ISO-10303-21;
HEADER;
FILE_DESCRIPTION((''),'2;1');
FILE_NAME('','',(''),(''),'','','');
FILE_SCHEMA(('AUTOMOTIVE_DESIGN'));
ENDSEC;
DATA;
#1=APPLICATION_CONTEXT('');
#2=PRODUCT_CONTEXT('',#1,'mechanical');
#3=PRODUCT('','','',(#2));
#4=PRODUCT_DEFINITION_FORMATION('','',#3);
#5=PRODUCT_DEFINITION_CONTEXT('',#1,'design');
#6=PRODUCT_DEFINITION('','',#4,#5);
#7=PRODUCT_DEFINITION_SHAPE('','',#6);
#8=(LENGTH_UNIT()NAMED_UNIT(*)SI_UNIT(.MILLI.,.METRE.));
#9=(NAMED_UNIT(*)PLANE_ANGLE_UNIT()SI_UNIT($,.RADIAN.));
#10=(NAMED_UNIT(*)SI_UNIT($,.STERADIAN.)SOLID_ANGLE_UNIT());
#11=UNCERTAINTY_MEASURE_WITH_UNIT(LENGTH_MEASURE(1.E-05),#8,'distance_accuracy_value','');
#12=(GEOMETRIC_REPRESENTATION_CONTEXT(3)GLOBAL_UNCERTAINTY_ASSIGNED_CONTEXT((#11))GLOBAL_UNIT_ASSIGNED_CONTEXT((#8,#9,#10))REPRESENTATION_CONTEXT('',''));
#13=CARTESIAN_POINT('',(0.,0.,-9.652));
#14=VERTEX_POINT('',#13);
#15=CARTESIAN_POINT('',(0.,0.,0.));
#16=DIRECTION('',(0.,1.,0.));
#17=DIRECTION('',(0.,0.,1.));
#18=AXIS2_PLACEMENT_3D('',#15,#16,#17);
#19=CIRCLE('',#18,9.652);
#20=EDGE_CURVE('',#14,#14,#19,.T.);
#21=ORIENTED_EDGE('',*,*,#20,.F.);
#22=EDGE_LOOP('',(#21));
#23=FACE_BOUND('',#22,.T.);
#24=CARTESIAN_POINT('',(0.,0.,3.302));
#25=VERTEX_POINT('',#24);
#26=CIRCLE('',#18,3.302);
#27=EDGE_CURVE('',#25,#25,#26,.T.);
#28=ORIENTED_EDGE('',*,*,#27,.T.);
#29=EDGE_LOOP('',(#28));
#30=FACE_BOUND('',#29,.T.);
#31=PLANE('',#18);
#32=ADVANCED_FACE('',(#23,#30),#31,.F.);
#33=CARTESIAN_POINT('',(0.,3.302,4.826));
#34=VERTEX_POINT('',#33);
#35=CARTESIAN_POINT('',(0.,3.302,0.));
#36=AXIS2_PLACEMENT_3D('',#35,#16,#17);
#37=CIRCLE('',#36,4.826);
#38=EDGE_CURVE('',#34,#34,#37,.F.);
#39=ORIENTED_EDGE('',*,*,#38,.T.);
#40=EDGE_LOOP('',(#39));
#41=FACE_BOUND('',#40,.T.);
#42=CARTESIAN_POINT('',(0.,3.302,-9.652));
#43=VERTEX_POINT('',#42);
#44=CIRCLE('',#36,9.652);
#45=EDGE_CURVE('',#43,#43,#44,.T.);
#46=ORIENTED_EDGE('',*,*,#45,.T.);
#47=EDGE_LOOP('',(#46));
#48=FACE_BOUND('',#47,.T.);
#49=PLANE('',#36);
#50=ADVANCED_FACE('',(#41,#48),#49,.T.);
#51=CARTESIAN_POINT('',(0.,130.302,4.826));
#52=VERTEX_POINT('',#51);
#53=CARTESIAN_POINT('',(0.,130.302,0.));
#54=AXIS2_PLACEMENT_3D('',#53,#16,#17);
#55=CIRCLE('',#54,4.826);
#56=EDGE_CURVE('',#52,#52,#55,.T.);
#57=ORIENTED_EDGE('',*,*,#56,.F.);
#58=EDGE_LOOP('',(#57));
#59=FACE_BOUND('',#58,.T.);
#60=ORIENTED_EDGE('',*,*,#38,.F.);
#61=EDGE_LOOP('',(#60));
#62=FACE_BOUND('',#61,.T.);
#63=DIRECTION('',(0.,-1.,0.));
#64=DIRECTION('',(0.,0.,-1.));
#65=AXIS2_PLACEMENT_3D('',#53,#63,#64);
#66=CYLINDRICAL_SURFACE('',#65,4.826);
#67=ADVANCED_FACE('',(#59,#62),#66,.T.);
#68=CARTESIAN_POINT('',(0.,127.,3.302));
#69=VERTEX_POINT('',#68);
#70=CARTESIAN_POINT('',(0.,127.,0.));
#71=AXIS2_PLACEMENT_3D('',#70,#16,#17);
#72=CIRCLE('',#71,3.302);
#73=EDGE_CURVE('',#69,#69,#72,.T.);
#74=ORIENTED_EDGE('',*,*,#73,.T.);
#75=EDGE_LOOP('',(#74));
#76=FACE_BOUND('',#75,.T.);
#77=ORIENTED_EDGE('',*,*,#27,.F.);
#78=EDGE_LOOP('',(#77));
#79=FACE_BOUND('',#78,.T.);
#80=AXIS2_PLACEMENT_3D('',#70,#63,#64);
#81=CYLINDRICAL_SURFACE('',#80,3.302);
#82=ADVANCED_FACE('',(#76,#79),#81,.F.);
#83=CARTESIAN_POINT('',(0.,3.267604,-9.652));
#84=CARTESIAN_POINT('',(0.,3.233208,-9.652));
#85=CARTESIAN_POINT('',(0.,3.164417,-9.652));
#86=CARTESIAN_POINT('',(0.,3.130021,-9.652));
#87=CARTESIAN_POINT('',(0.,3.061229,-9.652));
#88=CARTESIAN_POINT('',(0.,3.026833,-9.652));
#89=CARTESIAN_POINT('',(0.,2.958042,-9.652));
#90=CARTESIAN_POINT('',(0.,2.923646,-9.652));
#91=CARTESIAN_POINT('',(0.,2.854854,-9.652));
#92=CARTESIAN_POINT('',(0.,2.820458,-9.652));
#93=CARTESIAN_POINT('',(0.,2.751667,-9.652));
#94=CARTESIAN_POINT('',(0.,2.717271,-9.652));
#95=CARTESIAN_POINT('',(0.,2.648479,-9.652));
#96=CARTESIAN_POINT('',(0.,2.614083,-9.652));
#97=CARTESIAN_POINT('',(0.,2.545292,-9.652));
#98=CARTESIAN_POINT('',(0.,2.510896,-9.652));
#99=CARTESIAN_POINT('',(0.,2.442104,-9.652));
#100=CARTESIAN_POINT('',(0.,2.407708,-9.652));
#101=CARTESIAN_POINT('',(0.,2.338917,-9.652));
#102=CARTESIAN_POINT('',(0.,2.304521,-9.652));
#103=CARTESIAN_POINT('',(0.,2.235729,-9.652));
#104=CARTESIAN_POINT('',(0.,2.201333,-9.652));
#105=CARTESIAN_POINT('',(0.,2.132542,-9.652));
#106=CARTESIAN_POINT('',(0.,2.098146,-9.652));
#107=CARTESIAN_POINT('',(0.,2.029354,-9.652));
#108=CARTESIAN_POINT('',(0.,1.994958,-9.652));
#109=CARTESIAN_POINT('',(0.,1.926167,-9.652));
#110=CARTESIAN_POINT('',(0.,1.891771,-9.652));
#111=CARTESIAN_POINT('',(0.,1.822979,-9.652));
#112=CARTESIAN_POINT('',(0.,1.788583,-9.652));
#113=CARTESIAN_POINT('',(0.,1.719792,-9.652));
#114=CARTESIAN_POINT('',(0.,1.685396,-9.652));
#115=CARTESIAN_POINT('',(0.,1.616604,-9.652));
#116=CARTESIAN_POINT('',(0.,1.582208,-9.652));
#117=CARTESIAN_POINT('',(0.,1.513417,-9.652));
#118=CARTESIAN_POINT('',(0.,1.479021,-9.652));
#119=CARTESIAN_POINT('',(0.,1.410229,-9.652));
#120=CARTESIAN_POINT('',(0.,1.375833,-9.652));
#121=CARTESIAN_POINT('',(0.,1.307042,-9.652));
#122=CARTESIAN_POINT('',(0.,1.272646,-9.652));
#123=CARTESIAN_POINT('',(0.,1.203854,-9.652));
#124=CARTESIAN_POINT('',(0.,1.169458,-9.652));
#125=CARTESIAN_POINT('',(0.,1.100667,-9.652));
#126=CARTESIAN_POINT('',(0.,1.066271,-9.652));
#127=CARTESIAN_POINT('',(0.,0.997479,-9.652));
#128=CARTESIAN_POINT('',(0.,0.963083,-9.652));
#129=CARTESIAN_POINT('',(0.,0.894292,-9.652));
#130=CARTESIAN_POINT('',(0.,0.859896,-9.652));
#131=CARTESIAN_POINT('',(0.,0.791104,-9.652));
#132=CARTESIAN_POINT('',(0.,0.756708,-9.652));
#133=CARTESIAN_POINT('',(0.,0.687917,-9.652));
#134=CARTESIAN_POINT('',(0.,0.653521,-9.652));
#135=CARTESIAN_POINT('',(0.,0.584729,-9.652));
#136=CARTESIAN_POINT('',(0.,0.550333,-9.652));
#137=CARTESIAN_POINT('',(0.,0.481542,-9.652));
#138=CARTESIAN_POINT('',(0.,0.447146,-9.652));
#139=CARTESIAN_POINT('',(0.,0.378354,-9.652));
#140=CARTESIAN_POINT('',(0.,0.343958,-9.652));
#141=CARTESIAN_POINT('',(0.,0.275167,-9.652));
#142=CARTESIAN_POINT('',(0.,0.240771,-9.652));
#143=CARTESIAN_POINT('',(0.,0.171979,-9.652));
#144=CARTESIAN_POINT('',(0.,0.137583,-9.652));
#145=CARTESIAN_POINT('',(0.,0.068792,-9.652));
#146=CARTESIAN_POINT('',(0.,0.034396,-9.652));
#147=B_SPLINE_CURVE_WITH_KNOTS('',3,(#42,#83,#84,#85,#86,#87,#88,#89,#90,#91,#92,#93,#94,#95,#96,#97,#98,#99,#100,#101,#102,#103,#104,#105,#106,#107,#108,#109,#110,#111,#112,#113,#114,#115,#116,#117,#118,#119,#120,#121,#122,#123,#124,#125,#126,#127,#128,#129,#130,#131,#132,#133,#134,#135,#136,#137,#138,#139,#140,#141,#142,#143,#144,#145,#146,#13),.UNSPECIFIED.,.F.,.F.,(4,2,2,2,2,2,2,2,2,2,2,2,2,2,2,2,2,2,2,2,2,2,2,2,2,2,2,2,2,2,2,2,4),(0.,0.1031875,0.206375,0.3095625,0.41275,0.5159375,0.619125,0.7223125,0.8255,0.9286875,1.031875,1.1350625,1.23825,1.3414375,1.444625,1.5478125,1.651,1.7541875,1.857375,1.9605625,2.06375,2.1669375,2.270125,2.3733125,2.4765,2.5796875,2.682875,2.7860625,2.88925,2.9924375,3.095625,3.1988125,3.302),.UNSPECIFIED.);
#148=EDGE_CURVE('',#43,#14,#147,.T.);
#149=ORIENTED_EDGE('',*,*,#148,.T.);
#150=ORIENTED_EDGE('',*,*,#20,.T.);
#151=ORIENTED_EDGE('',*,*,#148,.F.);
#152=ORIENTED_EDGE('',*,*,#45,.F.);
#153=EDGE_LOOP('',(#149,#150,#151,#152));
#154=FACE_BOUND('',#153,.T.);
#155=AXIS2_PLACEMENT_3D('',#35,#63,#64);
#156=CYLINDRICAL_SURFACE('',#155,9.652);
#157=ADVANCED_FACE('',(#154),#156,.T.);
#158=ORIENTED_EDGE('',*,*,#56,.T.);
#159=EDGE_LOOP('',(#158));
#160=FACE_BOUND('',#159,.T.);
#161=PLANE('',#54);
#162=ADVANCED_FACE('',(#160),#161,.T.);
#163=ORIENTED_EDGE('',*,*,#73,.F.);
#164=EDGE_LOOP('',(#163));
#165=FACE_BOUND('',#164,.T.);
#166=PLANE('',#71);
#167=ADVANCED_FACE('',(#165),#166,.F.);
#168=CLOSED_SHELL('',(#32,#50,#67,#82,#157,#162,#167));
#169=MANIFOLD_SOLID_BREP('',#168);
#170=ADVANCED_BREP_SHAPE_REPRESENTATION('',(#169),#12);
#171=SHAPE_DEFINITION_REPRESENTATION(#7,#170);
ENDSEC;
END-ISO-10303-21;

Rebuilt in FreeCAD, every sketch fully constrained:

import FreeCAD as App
import Part
import Sketcher
Q = App.Units.Quantity

doc = App.newDocument("Part")
body = doc.addObject("PartDesign::Body", "Body")

sketch1 = body.newObject("Sketcher::SketchObject", "Sketch")
sketch1.AttachmentSupport = (doc.getObject("XZ_Plane"), [""])
sketch1.MapMode = "FlatFace"
sketch1.addGeometry(Part.Circle(App.Vector(0, 0, 0), App.Vector(0, 0, 1), 10), False)
sketch1.addConstraint([
    Sketcher.Constraint("Coincident", 0, 3, -1, 1),
    Sketcher.Constraint("Diameter", 0, Q("0.76 in")),
])
pad1 = body.newObject("PartDesign::Pad", "Pad")
pad1.Profile = sketch1
pad1.Length = Q("0.13 in")
pad1.Reversed = True

sketch2 = body.newObject("Sketcher::SketchObject", "Sketch001")
sketch2.AttachmentSupport = (doc.getObject("XZ_Plane"), [""])
sketch2.MapMode = "FlatFace"
sketch2.addGeometry(Part.Circle(App.Vector(0, 0, 0), App.Vector(0, 0, 1), 4.8), False)
sketch2.addConstraint([
    Sketcher.Constraint("Coincident", 0, 3, -1, 1),
    Sketcher.Constraint("Diameter", 0, Q("0.38 in")),
])
pad2 = body.newObject("PartDesign::Pad", "Pad001")
pad2.Profile = sketch2
pad2.Length = Q("5.13 in")
pad2.Reversed = True

sketch3 = body.newObject("Sketcher::SketchObject", "Sketch002")
sketch3.AttachmentSupport = (doc.getObject("XZ_Plane"), [""])
sketch3.MapMode = "FlatFace"
sketch3.addGeometry(Part.Circle(App.Vector(0, 0, 0), App.Vector(0, 0, 1), 3.3), False)
sketch3.addConstraint([
    Sketcher.Constraint("Coincident", 0, 3, -1, 1),
    Sketcher.Constraint("Diameter", 0, Q("0.26 in")),
])
pocket1 = body.newObject("PartDesign::Pocket", "Pocket")
pocket1.Profile = sketch3
pocket1.Length = Q("5 in")

doc.recompute()
